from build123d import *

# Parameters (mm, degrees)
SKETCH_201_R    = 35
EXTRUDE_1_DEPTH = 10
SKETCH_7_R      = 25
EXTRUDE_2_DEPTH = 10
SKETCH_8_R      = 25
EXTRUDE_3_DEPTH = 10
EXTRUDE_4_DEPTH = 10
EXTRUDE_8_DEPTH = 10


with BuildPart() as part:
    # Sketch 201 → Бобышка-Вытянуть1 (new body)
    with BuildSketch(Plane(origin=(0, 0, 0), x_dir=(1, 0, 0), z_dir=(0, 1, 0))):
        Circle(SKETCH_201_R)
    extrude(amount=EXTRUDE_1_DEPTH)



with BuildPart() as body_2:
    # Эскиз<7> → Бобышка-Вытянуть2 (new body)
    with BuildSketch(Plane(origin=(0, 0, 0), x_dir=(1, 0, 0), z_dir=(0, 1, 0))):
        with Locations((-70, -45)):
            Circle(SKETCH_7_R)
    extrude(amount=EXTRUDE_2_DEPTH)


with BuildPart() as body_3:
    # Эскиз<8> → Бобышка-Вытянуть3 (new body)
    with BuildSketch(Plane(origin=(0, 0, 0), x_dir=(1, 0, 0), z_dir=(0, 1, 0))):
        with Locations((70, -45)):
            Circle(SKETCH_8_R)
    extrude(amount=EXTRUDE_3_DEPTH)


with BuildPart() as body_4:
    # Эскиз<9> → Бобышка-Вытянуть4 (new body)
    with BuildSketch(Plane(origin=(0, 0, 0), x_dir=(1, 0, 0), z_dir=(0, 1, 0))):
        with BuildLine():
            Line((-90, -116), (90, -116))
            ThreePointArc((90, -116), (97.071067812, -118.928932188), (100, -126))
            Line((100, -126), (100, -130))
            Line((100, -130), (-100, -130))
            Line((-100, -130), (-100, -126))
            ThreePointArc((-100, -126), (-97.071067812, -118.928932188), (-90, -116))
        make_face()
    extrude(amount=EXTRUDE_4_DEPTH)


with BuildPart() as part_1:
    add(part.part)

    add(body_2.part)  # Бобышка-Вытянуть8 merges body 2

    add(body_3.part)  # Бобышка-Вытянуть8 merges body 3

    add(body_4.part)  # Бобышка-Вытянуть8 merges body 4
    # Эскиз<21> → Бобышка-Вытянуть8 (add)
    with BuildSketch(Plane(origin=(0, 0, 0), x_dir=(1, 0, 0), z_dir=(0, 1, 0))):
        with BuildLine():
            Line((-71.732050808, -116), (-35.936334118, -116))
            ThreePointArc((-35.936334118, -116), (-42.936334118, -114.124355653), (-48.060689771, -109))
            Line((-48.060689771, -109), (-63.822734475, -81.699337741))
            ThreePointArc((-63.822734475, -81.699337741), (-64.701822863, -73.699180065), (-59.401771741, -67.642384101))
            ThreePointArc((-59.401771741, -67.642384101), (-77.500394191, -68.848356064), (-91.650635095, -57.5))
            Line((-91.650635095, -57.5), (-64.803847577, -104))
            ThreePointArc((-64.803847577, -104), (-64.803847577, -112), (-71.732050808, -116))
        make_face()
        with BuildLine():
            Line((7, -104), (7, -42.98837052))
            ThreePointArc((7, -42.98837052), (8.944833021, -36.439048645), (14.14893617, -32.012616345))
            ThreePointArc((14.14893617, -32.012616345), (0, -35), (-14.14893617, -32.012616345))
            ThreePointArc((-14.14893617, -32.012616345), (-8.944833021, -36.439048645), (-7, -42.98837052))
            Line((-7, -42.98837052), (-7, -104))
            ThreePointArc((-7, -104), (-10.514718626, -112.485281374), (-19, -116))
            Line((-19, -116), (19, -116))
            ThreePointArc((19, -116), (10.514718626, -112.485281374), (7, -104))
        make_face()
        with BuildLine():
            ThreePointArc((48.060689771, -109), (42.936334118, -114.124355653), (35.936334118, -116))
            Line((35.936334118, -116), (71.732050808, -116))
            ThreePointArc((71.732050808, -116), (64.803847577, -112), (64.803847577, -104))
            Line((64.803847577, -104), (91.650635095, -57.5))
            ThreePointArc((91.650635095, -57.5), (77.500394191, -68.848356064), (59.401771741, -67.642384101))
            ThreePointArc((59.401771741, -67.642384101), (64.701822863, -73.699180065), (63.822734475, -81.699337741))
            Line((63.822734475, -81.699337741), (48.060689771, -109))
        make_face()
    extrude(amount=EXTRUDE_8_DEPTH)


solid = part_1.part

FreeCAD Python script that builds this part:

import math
import FreeCAD as App
import Part
import Sketcher
Q = App.Units.Quantity

doc = App.newDocument("Part")
body = doc.addObject("PartDesign::Body", "Body")

sketch1 = body.newObject("Sketcher::SketchObject", "Sketch")
sketch1.AttachmentSupport = (doc.getObject("XZ_Plane"), [""])
sketch1.MapMode = "FlatFace"
sketch1.addGeometry(Part.Circle(App.Vector(0, 0, 0), App.Vector(0, 0, 1), 35), False)
sketch1.addConstraint([
    Sketcher.Constraint("Coincident", 0, 3, -1, 1),
    Sketcher.Constraint("Diameter", 0, Q("70 mm")),
])
pad1 = body.newObject("PartDesign::Pad", "Pad")
pad1.Profile = sketch1
pad1.Length = 10
pad1.Reversed = True
body2 = doc.addObject("PartDesign::Body", "Body001")

sketch2 = body2.newObject("Sketcher::SketchObject", "Sketch001")
sketch2.AttachmentSupport = (doc.getObject("XZ_Plane001"), [""])
sketch2.MapMode = "FlatFace"
sketch2.addGeometry(Part.Circle(App.Vector(-70, 45, 0), App.Vector(0, 0, 1), 25), False)
sketch2.addConstraint([
    Sketcher.Constraint("Diameter", 0, Q("50 mm")),
    Sketcher.Constraint("DistanceX", 0, 3, -1, 1, Q("70 mm")),
    Sketcher.Constraint("DistanceY", -1, 1, 0, 3, Q("45 mm")),
])
pad2 = body2.newObject("PartDesign::Pad", "Pad001")
pad2.Profile = sketch2
pad2.Length = 10
pad2.Reversed = True
body3 = doc.addObject("PartDesign::Body", "Body002")

sketch3 = body3.newObject("Sketcher::SketchObject", "Sketch002")
sketch3.AttachmentSupport = (doc.getObject("XZ_Plane002"), [""])
sketch3.MapMode = "FlatFace"
sketch3.addGeometry(Part.Circle(App.Vector(70, 45, 0), App.Vector(0, 0, 1), 25), False)
sketch3.addConstraint([
    Sketcher.Constraint("Diameter", 0, Q("50 mm")),
    Sketcher.Constraint("DistanceX", -1, 1, 0, 3, Q("70 mm")),
    Sketcher.Constraint("DistanceY", -1, 1, 0, 3, Q("45 mm")),
])
pad3 = body3.newObject("PartDesign::Pad", "Pad002")
pad3.Profile = sketch3
pad3.Length = 10
pad3.Reversed = True
body4 = doc.addObject("PartDesign::Body", "Body003")

sketch4 = body4.newObject("Sketcher::SketchObject", "Sketch003")
sketch4.AttachmentSupport = (doc.getObject("XZ_Plane003"), [""])
sketch4.MapMode = "FlatFace"
sketch4.addGeometry([
    Part.LineSegment(App.Vector(90, 116, 0), App.Vector(-90, 116, 0)),
    Part.ArcOfCircle(Part.Circle(App.Vector(-90, 126, 0), App.Vector(0, 0, 1), 10), math.radians(180), math.radians(270)),
    Part.LineSegment(App.Vector(-100, 126, 0), App.Vector(-100, 130, 0)),
    Part.LineSegment(App.Vector(-100, 130, 0), App.Vector(100, 130, 0)),
    Part.LineSegment(App.Vector(100, 130, 0), App.Vector(100, 126, 0)),
    Part.ArcOfCircle(Part.Circle(App.Vector(90, 126, 0), App.Vector(0, 0, 1), 10), math.radians(-90), math.radians(0)),
], False)
sketch4.addConstraint([
    Sketcher.Constraint("Tangent", 0, 2, 1, 2),
    Sketcher.Constraint("Tangent", 1, 1, 2, 1),
    Sketcher.Constraint("Coincident", 2, 2, 3, 1),
    Sketcher.Constraint("Coincident", 3, 2, 4, 1),
    Sketcher.Constraint("Tangent", 4, 2, 5, 2),
    Sketcher.Constraint("Tangent", 5, 1, 0, 1),
    Sketcher.Constraint("Horizontal", 0),
    Sketcher.Constraint("Vertical", 2),
    Sketcher.Constraint("Horizontal", 3),
    Sketcher.Constraint("Vertical", 4),
    Sketcher.Constraint("Equal", 1, 5),
    Sketcher.Constraint("Radius", 1, Q("10 mm")),
    Sketcher.Constraint("DistanceX", 0, 2, 0, 1, Q("180 mm")),
    Sketcher.Constraint("DistanceY", 2, 1, 2, 2, Q("4 mm")),
    Sketcher.Constraint("DistanceX", 1, 3, -1, 1, Q("90 mm")),
    Sketcher.Constraint("DistanceY", -1, 1, 1, 3, Q("126 mm")),
])
pad4 = body4.newObject("PartDesign::Pad", "Pad003")
pad4.Profile = sketch4
pad4.Length = 10
pad4.Reversed = True
body.AllowCompound = True
doc.recompute()

boolean = body.newObject("PartDesign::Boolean", "Boolean")
boolean.Type = "Fuse"
boolean.addObjects([body2])
doc.recompute()

boolean2 = body.newObject("PartDesign::Boolean", "Boolean001")
boolean2.Type = "Fuse"
boolean2.addObjects([body3])
doc.recompute()

boolean3 = body.newObject("PartDesign::Boolean", "Boolean002")
boolean3.Type = "Fuse"
boolean3.addObjects([body4])

sketch5 = body.newObject("Sketcher::SketchObject", "Sketch004")
sketch5.AttachmentSupport = (doc.getObject("XZ_Plane"), [""])
sketch5.MapMode = "FlatFace"
sketch5.addGeometry([
    Part.LineSegment(App.Vector(-72, 116, 0), App.Vector(-36, 116, 0)),
    Part.ArcOfCircle(Part.Circle(App.Vector(-36, 102, 0), App.Vector(0, 0, 1), 14), math.radians(90), math.radians(150)),
    Part.LineSegment(App.Vector(-48, 109, 0), App.Vector(-64, 82, 0)),
    Part.ArcOfCircle(Part.Circle(App.Vector(-55, 77, 0), App.Vector(0, 0, 1), 10), math.radians(150), math.radians(245)),
    Part.ArcOfCircle(Part.Circle(App.Vector(-70, 45, 0), App.Vector(0, 0, 1), 25), math.radians(65), math.radians(150)),
    Part.LineSegment(App.Vector(-92, 58, 0), App.Vector(-65, 104, 0)),
    Part.ArcOfCircle(Part.Circle(App.Vector(-72, 108, 0), App.Vector(0, 0, 1), 8), math.radians(-30), math.radians(90)),
    Part.LineSegment(App.Vector(7, 104, 0), App.Vector(7, 43, 0)),
    Part.ArcOfCircle(Part.Circle(App.Vector(19, 43, 0), App.Vector(0, 0, 1), 12), math.radians(180), math.radians(246)),
    Part.ArcOfCircle(Part.Circle(App.Vector(0, 0, 0), App.Vector(0, 0, 1), 35), math.radians(66), math.radians(114)),
    Part.ArcOfCircle(Part.Circle(App.Vector(-19, 43, 0), App.Vector(0, 0, 1), 12), math.radians(-66), math.radians(0)),
    Part.LineSegment(App.Vector(-7, 43, 0), App.Vector(-7, 104, 0)),
    Part.ArcOfCircle(Part.Circle(App.Vector(-19, 104, 0), App.Vector(0, 0, 1), 12), math.radians(0), math.radians(90)),
    Part.LineSegment(App.Vector(-19, 116, 0), App.Vector(19, 116, 0)),
    Part.ArcOfCircle(Part.Circle(App.Vector(19, 104, 0), App.Vector(0, 0, 1), 12), math.radians(90), math.radians(180)),
    Part.ArcOfCircle(Part.Circle(App.Vector(36, 102, 0), App.Vector(0, 0, 1), 14), math.radians(30), math.radians(90)),
    Part.LineSegment(App.Vector(36, 116, 0), App.Vector(72, 116, 0)),
    Part.ArcOfCircle(Part.Circle(App.Vector(72, 108, 0), App.Vector(0, 0, 1), 8), math.radians(90), math.radians(210)),
    Part.LineSegment(App.Vector(65, 104, 0), App.Vector(92, 58, 0)),
    Part.ArcOfCircle(Part.Circle(App.Vector(70, 45, 0), App.Vector(0, 0, 1), 25), math.radians(30), math.radians(115)),
    Part.ArcOfCircle(Part.Circle(App.Vector(55, 77, 0), App.Vector(0, 0, 1), 10), math.radians(-65), math.radians(30)),
    Part.LineSegment(App.Vector(64, 82, 0), App.Vector(48, 109, 0)),
], False)
sketch5.addConstraint([
    Sketcher.Constraint("Tangent", 0, 2, 1, 1),
    Sketcher.Constraint("Tangent", 1, 2, 2, 1),
    Sketcher.Constraint("Tangent", 2, 2, 3, 1),
    Sketcher.Constraint("Tangent", 3, 2, 4, 1),
    Sketcher.Constraint("Tangent", 4, 2, 5, 1),
    Sketcher.Constraint("Tangent", 5, 2, 6, 1),
    Sketcher.Constraint("Tangent", 6, 2, 0, 1),
    Sketcher.Constraint("Tangent", 7, 2, 8, 1),
    Sketcher.Constraint("Tangent", 8, 2, 9, 1),
    Sketcher.Constraint("Tangent", 9, 2, 10, 1),
    Sketcher.Constraint("Tangent", 10, 2, 11, 1),
    Sketcher.Constraint("Tangent", 11, 2, 12, 1),
    Sketcher.Constraint("Tangent", 12, 2, 13, 1),
    Sketcher.Constraint("Tangent", 13, 2, 14, 1),
    Sketcher.Constraint("Tangent", 14, 2, 7, 1),
    Sketcher.Constraint("Tangent", 15, 2, 16, 1),
    Sketcher.Constraint("Tangent", 16, 2, 17, 1),
    Sketcher.Constraint("Tangent", 17, 2, 18, 1),
    Sketcher.Constraint("Tangent", 18, 2, 19, 1),
    Sketcher.Constraint("Tangent", 19, 2, 20, 1),
    Sketcher.Constraint("Tangent", 20, 2, 21, 1),
    Sketcher.Constraint("Tangent", 21, 2, 15, 1),
    Sketcher.Constraint("Horizontal", 0),
    Sketcher.Constraint("Vertical", 7),
    Sketcher.Constraint("Vertical", 11),
    Sketcher.Constraint("Horizontal", 13),
    Sketcher.Constraint("Horizontal", 16),
    Sketcher.Constraint("Coincident", 9, 3, -1, 1),
    Sketcher.Constraint("Equal", 8, 10),
    Sketcher.Constraint("Equal", 10, 12),
    Sketcher.Constraint("Equal", 12, 14),
    Sketcher.Constraint("Equal", 1, 15),
    Sketcher.Constraint("Equal", 6, 17),
    Sketcher.Constraint("Equal", 4, 19),
    Sketcher.Constraint("Equal", 3, 20),
    Sketcher.Constraint("Symmetric", 1, 3, 15, 3, -2),
    Sketcher.Constraint("Symmetric", 4, 3, 19, 3, -2),
    Sketcher.Constraint("Parallel", 2, 5),
    Sketcher.Constraint("Parallel", 18, 21),
    Sketcher.Constraint("Horizontal", 8, 3, 10, 3),
    Sketcher.Constraint("Horizontal", 3, 3, 20, 3),
    Sketcher.Constraint("Horizontal", 14, 3, 5, 2),
    Sketcher.Constraint("Horizontal", 6, 2, 12, 2),
    Sketcher.Constraint("Radius", 1, Q("14 mm")),
    Sketcher.Constraint("Radius", 3, Q("10 mm")),
    Sketcher.Constraint("Radius", 4, Q("25 mm")),
    Sketcher.Constraint("Radius", 6, Q("8 mm")),
    Sketcher.Constraint("Radius", 8, Q("12 mm")),
    Sketcher.Constraint("Radius", 9, Q("35 mm")),
    Sketcher.Constraint("DistanceX", 13, 1, 13, 2, Q("38 mm")),
    Sketcher.Constraint("DistanceY", -1, 1, 1, 3, Q("102 mm")),
    Sketcher.Constraint("DistanceX", 4, 3, -1, 1, Q("70 mm")),
    Sketcher.Constraint("DistanceY", -1, 1, 4, 3, Q("45 mm")),
    Sketcher.Constraint("DistanceX", 2, 2, 1, 3, Q("27.8864 mm")),
])
pad5 = body.newObject("PartDesign::Pad", "Pad004")
pad5.Profile = sketch5
pad5.Length = 10
pad5.Reversed = True

doc.recompute()
